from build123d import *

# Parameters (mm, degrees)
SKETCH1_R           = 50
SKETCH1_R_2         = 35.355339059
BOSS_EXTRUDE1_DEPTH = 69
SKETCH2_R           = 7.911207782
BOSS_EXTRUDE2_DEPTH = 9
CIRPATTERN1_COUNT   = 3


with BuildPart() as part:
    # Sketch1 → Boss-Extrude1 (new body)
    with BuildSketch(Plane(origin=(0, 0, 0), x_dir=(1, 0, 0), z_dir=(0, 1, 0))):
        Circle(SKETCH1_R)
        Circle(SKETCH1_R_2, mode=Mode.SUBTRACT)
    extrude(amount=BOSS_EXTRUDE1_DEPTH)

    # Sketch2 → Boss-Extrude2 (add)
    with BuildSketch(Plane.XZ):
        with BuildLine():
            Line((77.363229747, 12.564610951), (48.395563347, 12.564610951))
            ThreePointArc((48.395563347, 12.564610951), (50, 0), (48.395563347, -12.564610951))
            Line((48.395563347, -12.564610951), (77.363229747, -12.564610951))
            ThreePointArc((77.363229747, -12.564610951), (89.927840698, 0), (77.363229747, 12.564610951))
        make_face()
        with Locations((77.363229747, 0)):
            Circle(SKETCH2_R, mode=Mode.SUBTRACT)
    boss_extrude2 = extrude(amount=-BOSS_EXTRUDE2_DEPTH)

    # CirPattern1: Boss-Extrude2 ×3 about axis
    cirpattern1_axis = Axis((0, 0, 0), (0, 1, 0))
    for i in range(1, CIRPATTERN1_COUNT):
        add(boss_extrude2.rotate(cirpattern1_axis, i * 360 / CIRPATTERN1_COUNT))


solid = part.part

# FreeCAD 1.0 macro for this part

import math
import FreeCAD as App
import Part
import Sketcher

doc = App.newDocument("Part")
body = doc.addObject("PartDesign::Body", "Body")

# Sketch on XZ plane
sketch1 = body.newObject("Sketcher::SketchObject", "Sketch")
sketch1.AttachmentSupport = (doc.getObject("XZ_Plane"), [""])
sketch1.MapMode = "FlatFace"
sketch1.addGeometry(Part.Circle(App.Vector(0, 0, 0), App.Vector(0, 0, 1), 50), False)
sketch1.addGeometry(Part.Circle(App.Vector(0, 0, 0), App.Vector(0, 0, 1), 35), False)
sketch1.addConstraint(Sketcher.Constraint("Coincident", 0, 3, -1, 1))
sketch1.addConstraint(Sketcher.Constraint("Coincident", 1, 3, -1, 1))
sketch1.addConstraint(Sketcher.Constraint("Diameter", 0, 100.0))
sketch1.addConstraint(Sketcher.Constraint("Diameter", 1, 70.710678))
pad1 = body.newObject("PartDesign::Pad", "Pad")
pad1.Profile = sketch1
pad1.Length = 69
pad1.Reversed = True

# Sketch on XZ plane
sketch2 = body.newObject("Sketcher::SketchObject", "Sketch001")
sketch2.AttachmentSupport = (doc.getObject("XZ_Plane"), [""])
sketch2.MapMode = "FlatFace"
sketch2.addGeometry(Part.LineSegment(App.Vector(77, 13, 0), App.Vector(48, 13, 0)), False)
sketch2.addGeometry(Part.ArcOfCircle(Part.Circle(App.Vector(0, 0, 0), App.Vector(0, 0, 1), 50), math.radians(-15), math.radians(15)), False)
sketch2.addGeometry(Part.LineSegment(App.Vector(48, -13, 0), App.Vector(77, -13, 0)), False)
sketch2.addGeometry(Part.ArcOfCircle(Part.Circle(App.Vector(77, 0, 0), App.Vector(0, 0, 1), 13), math.radians(-90), math.radians(90)), False)
sketch2.addGeometry(Part.Circle(App.Vector(77, 0, 0), App.Vector(0, 0, 1), 8), False)
sketch2.addConstraint(Sketcher.Constraint("Coincident", 0, 2, 1, 2))
sketch2.addConstraint(Sketcher.Constraint("Coincident", 1, 1, 2, 1))
sketch2.addConstraint(Sketcher.Constraint("Tangent", 2, 2, 3, 1))
sketch2.addConstraint(Sketcher.Constraint("Tangent", 3, 2, 0, 1))
sketch2.addConstraint(Sketcher.Constraint("Horizontal", 0))
sketch2.addConstraint(Sketcher.Constraint("Horizontal", 2))
sketch2.addConstraint(Sketcher.Constraint("Coincident", 1, 3, -1, 1))
sketch2.addConstraint(Sketcher.Constraint("Coincident", 4, 3, 3, 3))
sketch2.addConstraint(Sketcher.Constraint("PointOnObject", 3, 3, -1))
sketch2.addConstraint(Sketcher.Constraint("Radius", 1, 50.0))
sketch2.addConstraint(Sketcher.Constraint("Radius", 3, 12.564611))
sketch2.addConstraint(Sketcher.Constraint("Diameter", 4, 15.822416))
sketch2.addConstraint(Sketcher.Constraint("DistanceX", 0, 2, 0, 1, 28.967666))
pad2 = body.newObject("PartDesign::Pad", "Pad001")
pad2.Profile = sketch2
pad2.Length = 9
pad2.Reversed = True
doc.recompute()

polarpattern = body.newObject("PartDesign::PolarPattern", "PolarPattern")
polarpattern.Originals = [pad2]
polarpattern.Axis = (doc.getObject("Y_Axis"), [""])
polarpattern.Angle = 360
polarpattern.Occurrences = 3
body.Tip = polarpattern

doc.recompute()
